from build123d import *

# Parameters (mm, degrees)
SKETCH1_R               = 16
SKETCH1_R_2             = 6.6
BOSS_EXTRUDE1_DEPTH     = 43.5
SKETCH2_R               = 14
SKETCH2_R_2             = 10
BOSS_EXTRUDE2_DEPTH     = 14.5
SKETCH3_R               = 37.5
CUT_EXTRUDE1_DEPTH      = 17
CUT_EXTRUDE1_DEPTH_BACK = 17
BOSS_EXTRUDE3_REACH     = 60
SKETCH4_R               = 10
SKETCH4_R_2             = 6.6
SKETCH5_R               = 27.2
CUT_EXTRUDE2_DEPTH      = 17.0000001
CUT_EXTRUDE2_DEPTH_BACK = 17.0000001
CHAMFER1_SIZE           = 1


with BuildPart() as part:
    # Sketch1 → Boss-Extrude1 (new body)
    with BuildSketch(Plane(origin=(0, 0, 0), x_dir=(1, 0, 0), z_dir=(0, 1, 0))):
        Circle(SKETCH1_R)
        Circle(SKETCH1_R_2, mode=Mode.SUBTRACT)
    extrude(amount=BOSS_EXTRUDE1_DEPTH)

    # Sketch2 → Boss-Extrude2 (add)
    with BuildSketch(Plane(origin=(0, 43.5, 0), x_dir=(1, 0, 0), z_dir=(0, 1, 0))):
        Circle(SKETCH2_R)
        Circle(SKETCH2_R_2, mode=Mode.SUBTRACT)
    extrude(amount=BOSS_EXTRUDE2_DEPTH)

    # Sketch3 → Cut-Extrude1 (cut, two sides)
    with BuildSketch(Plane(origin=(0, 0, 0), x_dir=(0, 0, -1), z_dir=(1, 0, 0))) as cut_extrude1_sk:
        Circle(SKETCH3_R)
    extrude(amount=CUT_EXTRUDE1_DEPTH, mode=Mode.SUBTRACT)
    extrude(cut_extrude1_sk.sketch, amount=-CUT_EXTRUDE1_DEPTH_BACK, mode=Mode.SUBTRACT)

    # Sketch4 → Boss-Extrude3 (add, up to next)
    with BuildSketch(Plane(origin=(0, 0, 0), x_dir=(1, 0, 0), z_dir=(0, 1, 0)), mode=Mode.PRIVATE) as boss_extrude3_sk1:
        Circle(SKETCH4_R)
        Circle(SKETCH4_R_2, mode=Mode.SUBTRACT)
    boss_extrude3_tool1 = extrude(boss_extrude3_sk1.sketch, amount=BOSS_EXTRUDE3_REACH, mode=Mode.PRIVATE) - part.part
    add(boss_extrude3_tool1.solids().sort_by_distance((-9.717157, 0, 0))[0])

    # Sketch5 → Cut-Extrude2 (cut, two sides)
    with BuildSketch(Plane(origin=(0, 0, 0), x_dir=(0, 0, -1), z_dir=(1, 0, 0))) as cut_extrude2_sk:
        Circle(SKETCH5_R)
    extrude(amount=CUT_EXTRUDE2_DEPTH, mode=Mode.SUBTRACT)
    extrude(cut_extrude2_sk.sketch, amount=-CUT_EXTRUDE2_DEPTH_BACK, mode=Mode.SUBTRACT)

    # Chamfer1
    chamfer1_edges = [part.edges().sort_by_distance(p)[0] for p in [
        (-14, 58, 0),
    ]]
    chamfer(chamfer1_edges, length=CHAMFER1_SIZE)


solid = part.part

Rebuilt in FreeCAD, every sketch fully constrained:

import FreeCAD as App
import Part
import Sketcher
from FreeCAD import Vector


def edges_at(feature, points):
    """Names of the edges that pass closest to the given points."""
    edges = feature.Shape.Edges
    near = lambda p: min(range(len(edges)), key=lambda i: edges[i].distToShape(Part.Vertex(*p))[0])
    return sorted({f"Edge{near(p) + 1}" for p in points})

doc = App.newDocument("Part")
params = doc.addObject("Spreadsheet::Sheet", "Params")
for row, (alias, value) in enumerate([
    ("sketch1_diameter", "32 mm"),
    ("sketch1_diameter2", "13.2 mm"),
    ("pad1_length", "43.5 mm"),
    ("sketch2_diameter", "28 mm"),
    ("sketch2_diameter2", "20 mm"),
    ("pad2_length", "14.5 mm"),
    ("sketch3_diameter", "75 mm"),
    ("sketch4_diameter", "20 mm"),
    ("sketch4_diameter2", "13.2 mm"),
    ("pad3_length", "37.5 mm"),
    ("sketch5_diameter", "54.4 mm"),
    ("chamfer_size", "1 mm"),
], start=1):
    params.set(f"A{row}", alias)
    params.set(f"B{row}", "=" + value)
    params.setAlias(f"B{row}", alias)

body = doc.addObject("PartDesign::Body", "Body")

sketch1 = doc.addObject("Sketcher::SketchObject", "Sketch")
body.addObject(sketch1)
sketch1.AttachmentSupport = (doc.XZ_Plane, [""])
sketch1.MapMode = "FlatFace"
sketch1.addGeometry([
    Part.Circle(Vector(0, 0, 0), Vector(0, 0, 1), 16),
    Part.Circle(Vector(0, 0, 0), Vector(0, 0, 1), 7),
], False)
sketch1.addConstraint([
    Sketcher.Constraint("Coincident", 0, 3, -1, 1),
    Sketcher.Constraint("Coincident", 1, 3, -1, 1),
    Sketcher.Constraint("Diameter", 0, 32.0),
    Sketcher.Constraint("Diameter", 1, 13.2),
])
sketch1.setExpression("Constraints[2]", "Params.sketch1_diameter")
sketch1.setExpression("Constraints[3]", "Params.sketch1_diameter2")
pad1 = doc.addObject("PartDesign::Pad", "Pad")
body.addObject(pad1)
pad1.Profile = sketch1
pad1.setExpression("Length", "Params.pad1_length")
pad1.Reversed = True

sketch2 = doc.addObject("Sketcher::SketchObject", "Sketch001")
body.addObject(sketch2)
sketch2.AttachmentSupport = (doc.XZ_Plane, [""])
sketch2.MapMode = "FlatFace"
sketch2.AttachmentOffset = App.Placement(Vector(0, 0, -43.5), App.Rotation())
sketch2.addGeometry([
    Part.Circle(Vector(0, 0, 0), Vector(0, 0, 1), 14),
    Part.Circle(Vector(0, 0, 0), Vector(0, 0, 1), 10),
], False)
sketch2.addConstraint([
    Sketcher.Constraint("Coincident", 0, 3, -1, 1),
    Sketcher.Constraint("Coincident", 1, 3, -1, 1),
    Sketcher.Constraint("Diameter", 0, 28.0),
    Sketcher.Constraint("Diameter", 1, 20.0),
])
sketch2.setExpression("Constraints[2]", "Params.sketch2_diameter")
sketch2.setExpression("Constraints[3]", "Params.sketch2_diameter2")
pad2 = doc.addObject("PartDesign::Pad", "Pad001")
body.addObject(pad2)
pad2.Profile = sketch2
pad2.setExpression("Length", "Params.pad2_length")
pad2.Reversed = True

sketch3 = doc.addObject("Sketcher::SketchObject", "Sketch002")
body.addObject(sketch3)
sketch3.AttachmentSupport = (doc.YZ_Plane, [""])
sketch3.MapMode = "FlatFace"
sketch3.addGeometry(Part.Circle(Vector(0, 0, 0), Vector(0, 0, 1), 38), False)
sketch3.addConstraint([
    Sketcher.Constraint("Coincident", 0, 3, -1, 1),
    Sketcher.Constraint("Diameter", 0, 75.0),
])
sketch3.setExpression("Constraints[1]", "Params.sketch3_diameter")
pocket1 = doc.addObject("PartDesign::Pocket", "Pocket")
body.addObject(pocket1)
pocket1.Profile = sketch3
pocket1.Type = "ThroughAll"
pocket1.Midplane = True

sketch4 = doc.addObject("Sketcher::SketchObject", "Sketch003")
body.addObject(sketch4)
sketch4.AttachmentSupport = (doc.XZ_Plane, [""])
sketch4.MapMode = "FlatFace"
sketch4.addGeometry([
    Part.Circle(Vector(0, 0, 0), Vector(0, 0, 1), 10),
    Part.Circle(Vector(0, 0, 0), Vector(0, 0, 1), 7),
], False)
sketch4.addConstraint([
    Sketcher.Constraint("Coincident", 0, 3, -1, 1),
    Sketcher.Constraint("Coincident", 1, 3, -1, 1),
    Sketcher.Constraint("Diameter", 0, 20.0),
    Sketcher.Constraint("Diameter", 1, 13.2),
])
sketch4.setExpression("Constraints[2]", "Params.sketch4_diameter")
sketch4.setExpression("Constraints[3]", "Params.sketch4_diameter2")
pad3 = doc.addObject("PartDesign::Pad", "Pad002")
body.addObject(pad3)
pad3.Profile = sketch4
pad3.setExpression("Length", "Params.pad3_length")
pad3.Reversed = True

sketch5 = doc.addObject("Sketcher::SketchObject", "Sketch004")
body.addObject(sketch5)
sketch5.AttachmentSupport = (doc.YZ_Plane, [""])
sketch5.MapMode = "FlatFace"
sketch5.addGeometry(Part.Circle(Vector(0, 0, 0), Vector(0, 0, 1), 27), False)
sketch5.addConstraint([
    Sketcher.Constraint("Coincident", 0, 3, -1, 1),
    Sketcher.Constraint("Diameter", 0, 54.4),
])
sketch5.setExpression("Constraints[1]", "Params.sketch5_diameter")
pocket2 = doc.addObject("PartDesign::Pocket", "Pocket001")
body.addObject(pocket2)
pocket2.Profile = sketch5
pocket2.Type = "ThroughAll"
pocket2.Midplane = True
doc.recompute()

chamfer = doc.addObject("PartDesign::Chamfer", "Chamfer")
body.addObject(chamfer)
chamfer.Base = (pocket2, edges_at(pocket2, [(-14, 58, 0)]))
chamfer.setExpression("Size", "Params.chamfer_size")

doc.recompute()
